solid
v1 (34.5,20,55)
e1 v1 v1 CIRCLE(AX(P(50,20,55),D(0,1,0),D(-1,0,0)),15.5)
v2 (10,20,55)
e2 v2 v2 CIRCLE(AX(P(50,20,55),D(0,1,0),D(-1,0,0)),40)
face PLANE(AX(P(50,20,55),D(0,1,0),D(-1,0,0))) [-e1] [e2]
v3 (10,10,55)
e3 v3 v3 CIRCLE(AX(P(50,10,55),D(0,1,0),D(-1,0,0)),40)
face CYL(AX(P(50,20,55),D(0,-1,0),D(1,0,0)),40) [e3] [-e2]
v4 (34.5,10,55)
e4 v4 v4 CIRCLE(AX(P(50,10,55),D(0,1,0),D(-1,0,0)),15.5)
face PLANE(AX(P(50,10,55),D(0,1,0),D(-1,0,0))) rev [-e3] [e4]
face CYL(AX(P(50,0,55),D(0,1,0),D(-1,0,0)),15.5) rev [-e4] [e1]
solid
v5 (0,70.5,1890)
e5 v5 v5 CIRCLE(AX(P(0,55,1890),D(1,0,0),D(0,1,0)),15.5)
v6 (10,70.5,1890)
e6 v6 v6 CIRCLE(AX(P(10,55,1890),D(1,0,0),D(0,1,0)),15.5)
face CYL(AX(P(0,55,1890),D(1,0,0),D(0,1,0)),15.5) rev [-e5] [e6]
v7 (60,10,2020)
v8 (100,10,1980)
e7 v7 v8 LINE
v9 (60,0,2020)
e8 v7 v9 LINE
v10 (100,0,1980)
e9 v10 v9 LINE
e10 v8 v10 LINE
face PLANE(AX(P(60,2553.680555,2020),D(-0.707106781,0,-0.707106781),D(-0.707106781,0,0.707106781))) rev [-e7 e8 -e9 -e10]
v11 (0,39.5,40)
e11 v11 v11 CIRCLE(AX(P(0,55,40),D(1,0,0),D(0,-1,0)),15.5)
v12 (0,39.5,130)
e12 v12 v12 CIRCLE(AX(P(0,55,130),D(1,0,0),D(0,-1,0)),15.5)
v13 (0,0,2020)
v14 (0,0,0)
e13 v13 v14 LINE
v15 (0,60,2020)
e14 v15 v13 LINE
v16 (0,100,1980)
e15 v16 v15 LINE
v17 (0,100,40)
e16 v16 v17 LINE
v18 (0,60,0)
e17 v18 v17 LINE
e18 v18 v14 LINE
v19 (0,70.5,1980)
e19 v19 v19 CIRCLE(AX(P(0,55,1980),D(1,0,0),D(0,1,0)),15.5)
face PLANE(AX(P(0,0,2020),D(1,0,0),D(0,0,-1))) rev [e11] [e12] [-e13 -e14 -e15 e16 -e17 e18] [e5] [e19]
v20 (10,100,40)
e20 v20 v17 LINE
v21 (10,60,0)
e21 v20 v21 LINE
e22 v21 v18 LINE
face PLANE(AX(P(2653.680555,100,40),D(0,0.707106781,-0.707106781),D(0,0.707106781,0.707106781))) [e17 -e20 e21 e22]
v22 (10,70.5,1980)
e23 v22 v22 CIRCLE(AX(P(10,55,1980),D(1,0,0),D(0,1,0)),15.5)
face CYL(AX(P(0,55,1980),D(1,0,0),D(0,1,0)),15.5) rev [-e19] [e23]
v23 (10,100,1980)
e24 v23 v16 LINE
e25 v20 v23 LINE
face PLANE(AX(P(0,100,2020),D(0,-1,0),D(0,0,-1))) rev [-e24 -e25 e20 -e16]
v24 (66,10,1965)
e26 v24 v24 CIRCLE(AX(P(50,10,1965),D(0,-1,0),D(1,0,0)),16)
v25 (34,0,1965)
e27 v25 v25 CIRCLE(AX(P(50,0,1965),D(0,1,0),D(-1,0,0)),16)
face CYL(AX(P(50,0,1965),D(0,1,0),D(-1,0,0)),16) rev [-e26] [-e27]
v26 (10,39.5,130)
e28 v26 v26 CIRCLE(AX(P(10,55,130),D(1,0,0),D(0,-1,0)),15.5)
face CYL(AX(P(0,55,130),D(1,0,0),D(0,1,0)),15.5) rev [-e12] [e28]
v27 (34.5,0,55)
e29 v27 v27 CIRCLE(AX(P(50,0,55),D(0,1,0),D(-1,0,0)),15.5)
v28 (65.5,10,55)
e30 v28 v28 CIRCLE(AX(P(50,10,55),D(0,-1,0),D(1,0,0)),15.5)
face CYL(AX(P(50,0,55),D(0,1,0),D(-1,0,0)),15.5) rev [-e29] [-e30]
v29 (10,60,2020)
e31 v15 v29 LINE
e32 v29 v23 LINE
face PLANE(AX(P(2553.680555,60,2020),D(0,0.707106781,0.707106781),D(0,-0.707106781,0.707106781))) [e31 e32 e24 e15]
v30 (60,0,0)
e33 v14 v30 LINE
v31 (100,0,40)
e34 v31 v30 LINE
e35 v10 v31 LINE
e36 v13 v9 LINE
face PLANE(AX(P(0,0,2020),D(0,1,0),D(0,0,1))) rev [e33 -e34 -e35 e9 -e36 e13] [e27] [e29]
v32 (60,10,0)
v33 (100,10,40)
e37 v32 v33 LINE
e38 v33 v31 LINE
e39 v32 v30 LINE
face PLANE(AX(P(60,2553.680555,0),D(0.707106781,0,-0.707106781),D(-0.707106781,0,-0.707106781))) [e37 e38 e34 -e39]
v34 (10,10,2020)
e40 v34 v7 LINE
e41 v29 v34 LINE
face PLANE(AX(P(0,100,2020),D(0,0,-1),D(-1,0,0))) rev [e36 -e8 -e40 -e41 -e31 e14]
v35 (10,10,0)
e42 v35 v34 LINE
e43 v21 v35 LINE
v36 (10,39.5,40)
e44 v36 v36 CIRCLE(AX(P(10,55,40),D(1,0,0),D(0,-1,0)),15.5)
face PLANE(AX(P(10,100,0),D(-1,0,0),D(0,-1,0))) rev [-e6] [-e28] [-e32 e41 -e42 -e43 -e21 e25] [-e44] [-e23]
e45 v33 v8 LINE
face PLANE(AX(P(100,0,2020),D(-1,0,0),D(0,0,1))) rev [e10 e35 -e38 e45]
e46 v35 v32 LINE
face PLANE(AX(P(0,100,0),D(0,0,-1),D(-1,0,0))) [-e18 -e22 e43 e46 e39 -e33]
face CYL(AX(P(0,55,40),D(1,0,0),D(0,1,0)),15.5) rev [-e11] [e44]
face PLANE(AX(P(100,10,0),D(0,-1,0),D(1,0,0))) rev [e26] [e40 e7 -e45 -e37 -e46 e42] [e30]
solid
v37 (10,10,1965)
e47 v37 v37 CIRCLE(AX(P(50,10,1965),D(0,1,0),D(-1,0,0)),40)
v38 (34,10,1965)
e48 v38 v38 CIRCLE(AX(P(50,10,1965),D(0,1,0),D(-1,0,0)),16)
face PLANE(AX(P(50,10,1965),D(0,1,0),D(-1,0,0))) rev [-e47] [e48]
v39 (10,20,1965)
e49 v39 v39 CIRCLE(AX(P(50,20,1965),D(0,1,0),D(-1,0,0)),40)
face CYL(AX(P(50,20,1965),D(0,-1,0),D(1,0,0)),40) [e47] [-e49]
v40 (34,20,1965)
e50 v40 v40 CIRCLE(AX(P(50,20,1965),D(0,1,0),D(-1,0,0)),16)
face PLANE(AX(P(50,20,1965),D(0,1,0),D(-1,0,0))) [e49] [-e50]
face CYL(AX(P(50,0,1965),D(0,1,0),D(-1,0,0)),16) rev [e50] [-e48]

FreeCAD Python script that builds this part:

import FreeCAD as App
import Part
import Sketcher
from FreeCAD import Vector
Q = App.Units.Quantity


def add_polygon(sketch, points):
    """Adds a closed chain of lines whose ends are joined by coincident constraints."""
    first, n = sketch.GeometryCount, len(points)
    for a, b in zip(points, points[1:] + points[:1]):
        sketch.addGeometry(Part.LineSegment(App.Vector(*a, 0), App.Vector(*b, 0)), False)
    for i in range(n):
        sketch.addConstraint(Sketcher.Constraint("Coincident", first + i, 2, first + (i + 1) % n, 1))

doc = App.newDocument("Part")
body = doc.addObject("PartDesign::Body", "Body")

# Sketch on XY plane
sketch1 = doc.addObject("Sketcher::SketchObject", "Sketch")
body.addObject(sketch1)
sketch1.AttachmentSupport = (doc.XY_Plane, [""])
sketch1.MapMode = "FlatFace"
add_polygon(sketch1, [(0, 100), (0, 0), (100, 0), (100, 100)])  # lines 0-3
sketch1.addConstraint(Sketcher.Constraint("Vertical", 0))
sketch1.addConstraint(Sketcher.Constraint("Horizontal", 1))
sketch1.addConstraint(Sketcher.Constraint("Vertical", 2))
sketch1.addConstraint(Sketcher.Constraint("Horizontal", 3))
sketch1.addConstraint(Sketcher.Constraint("Coincident", 0, 2, -1, 1))
sketch1.addConstraint(Sketcher.Constraint("Equal", 3, 0))
sketch1.addConstraint(Sketcher.Constraint("DistanceX", 1, 1, 1, 2, Q("100 mm")))
pad1 = doc.addObject("PartDesign::Pad", "Pad")
body.addObject(pad1)
pad1.Profile = sketch1
pad1.Length = 2020

# Sketch on XY plane
sketch2 = doc.addObject("Sketcher::SketchObject", "Sketch001")
body.addObject(sketch2)
sketch2.AttachmentSupport = (doc.XY_Plane, [""])
sketch2.MapMode = "FlatFace"
sketch2.AttachmentOffset = App.Placement(Vector(0, 0, 2020), App.Rotation())
add_polygon(sketch2, [(10, 100), (10, 10), (100, 10), (100, 100)])  # lines 0-3
sketch2.addConstraint(Sketcher.Constraint("Vertical", 0))
sketch2.addConstraint(Sketcher.Constraint("Horizontal", 1))
sketch2.addConstraint(Sketcher.Constraint("Vertical", 2))
sketch2.addConstraint(Sketcher.Constraint("Horizontal", 3))
sketch2.addConstraint(Sketcher.Constraint("Equal", 3, 0))
sketch2.addConstraint(Sketcher.Constraint("DistanceX", 1, 1, 1, 2, Q("90 mm")))
sketch2.addConstraint(Sketcher.Constraint("DistanceX", -1, 1, 0, 2, Q("10 mm")))
sketch2.addConstraint(Sketcher.Constraint("DistanceY", -1, 1, 0, 2, Q("10 mm")))
pocket1 = doc.addObject("PartDesign::Pocket", "Pocket")
body.addObject(pocket1)
pocket1.Profile = sketch2
pocket1.Type = "ThroughAll"

# Sketch on YZ plane
sketch3 = doc.addObject("Sketcher::SketchObject", "Sketch002")
body.addObject(sketch3)
sketch3.AttachmentSupport = (doc.YZ_Plane, [""])
sketch3.MapMode = "FlatFace"
sketch3.AttachmentOffset = App.Placement(Vector(0, 0, 10), App.Rotation())
sketch3.addGeometry(Part.Circle(Vector(55, 1980, 0), Vector(0, 0, 1), 16), False)
sketch3.addGeometry(Part.Circle(Vector(55, 1890, 0), Vector(0, 0, 1), 16), False)
sketch3.addGeometry(Part.Circle(Vector(55, 130, 0), Vector(0, 0, 1), 16), False)
sketch3.addGeometry(Part.Circle(Vector(55, 40, 0), Vector(0, 0, 1), 16), False)
sketch3.addConstraint(Sketcher.Constraint("Equal", 0, 1))
sketch3.addConstraint(Sketcher.Constraint("Equal", 1, 2))
sketch3.addConstraint(Sketcher.Constraint("Equal", 2, 3))
sketch3.addConstraint(Sketcher.Constraint("Vertical", 0, 3, 1, 3))
sketch3.addConstraint(Sketcher.Constraint("Vertical", 1, 3, 2, 3))
sketch3.addConstraint(Sketcher.Constraint("Vertical", 2, 3, 3, 3))
sketch3.addConstraint(Sketcher.Constraint("Diameter", 0, Q("31 mm")))
sketch3.addConstraint(Sketcher.Constraint("DistanceX", -1, 1, 0, 3, Q("55 mm")))
sketch3.addConstraint(Sketcher.Constraint("DistanceY", -1, 1, 0, 3, Q("1980 mm")))
sketch3.addConstraint(Sketcher.Constraint("DistanceY", -1, 1, 1, 3, Q("1890 mm")))
sketch3.addConstraint(Sketcher.Constraint("DistanceY", -1, 1, 2, 3, Q("130 mm")))
sketch3.addConstraint(Sketcher.Constraint("DistanceY", -1, 1, 3, 3, Q("40 mm")))
pocket2 = doc.addObject("PartDesign::Pocket", "Pocket001")
body.addObject(pocket2)
pocket2.Profile = sketch3
pocket2.Type = "ThroughAll"
body2 = doc.addObject("PartDesign::Body", "Body001")

# Sketch on XZ plane
sketch4 = doc.addObject("Sketcher::SketchObject", "Sketch003")
body2.addObject(sketch4)
sketch4.AttachmentSupport = (doc.getObject("XZ_Plane001"), [""])
sketch4.MapMode = "FlatFace"
sketch4.AttachmentOffset = App.Placement(Vector(0, 0, -10), App.Rotation())
sketch4.addGeometry(Part.Circle(Vector(50, 1965, 0), Vector(0, 0, 1), 40), False)
sketch4.addConstraint(Sketcher.Constraint("Diameter", 0, Q("80 mm")))
sketch4.addConstraint(Sketcher.Constraint("DistanceX", -1, 1, 0, 3, Q("50 mm")))
sketch4.addConstraint(Sketcher.Constraint("DistanceY", -1, 1, 0, 3, Q("1965 mm")))
pad2 = doc.addObject("PartDesign::Pad", "Pad001")
body2.addObject(pad2)
pad2.Profile = sketch4
pad2.Length = 10
pad2.Reversed = True
body3 = doc.addObject("PartDesign::Body", "Body002")

# Sketch on XZ plane
sketch5 = doc.addObject("Sketcher::SketchObject", "Sketch004")
body3.addObject(sketch5)
sketch5.AttachmentSupport = (doc.getObject("XZ_Plane002"), [""])
sketch5.MapMode = "FlatFace"
sketch5.AttachmentOffset = App.Placement(Vector(0, 0, -10), App.Rotation())
sketch5.addGeometry(Part.Circle(Vector(50, 55, 0), Vector(0, 0, 1), 40), False)
sketch5.addConstraint(Sketcher.Constraint("Diameter", 0, Q("80 mm")))
sketch5.addConstraint(Sketcher.Constraint("DistanceX", -1, 1, 0, 3, Q("50 mm")))
sketch5.addConstraint(Sketcher.Constraint("DistanceY", -1, 1, 0, 3, Q("55 mm")))
pad3 = doc.addObject("PartDesign::Pad", "Pad002")
body3.addObject(pad3)
pad3.Profile = sketch5
pad3.Length = 10
pad3.Reversed = True
body4 = doc.addObject("PartDesign::Body", "Body003")

# Sketch on XZ plane
sketch6 = doc.addObject("Sketcher::SketchObject", "Sketch005")
body4.addObject(sketch6)
sketch6.AttachmentSupport = (doc.getObject("XZ_Plane003"), [""])
sketch6.MapMode = "FlatFace"
sketch6.AttachmentOffset = App.Placement(Vector(0, 0, -20), App.Rotation())
sketch6.addGeometry(Part.Circle(Vector(50, 55, 0), Vector(0, 0, 1), 16), False)
sketch6.addConstraint(Sketcher.Constraint("Diameter", 0, Q("31 mm")))
sketch6.addConstraint(Sketcher.Constraint("DistanceX", -1, 1, 0, 3, Q("50 mm")))
sketch6.addConstraint(Sketcher.Constraint("DistanceY", -1, 1, 0, 3, Q("55 mm")))
pad4 = doc.addObject("PartDesign::Pad", "Pad003")
body4.addObject(pad4)
pad4.Profile = sketch6
pad4.Length = 2025.055335
doc.recompute()

body5 = doc.addObject("PartDesign::Body", "Body004")
body5.BaseFeature = body4
boolean = doc.addObject("PartDesign::Boolean", "Boolean")
body.addObject(boolean)
boolean.Type = "Cut"
boolean.addObjects([body5])
doc.recompute()

boolean2 = doc.addObject("PartDesign::Boolean", "Boolean001")
body3.addObject(boolean2)
boolean2.Type = "Cut"
boolean2.addObjects([body4])
body6 = doc.addObject("PartDesign::Body", "Body005")

# Sketch on XZ plane
sketch7 = doc.addObject("Sketcher::SketchObject", "Sketch006")
body6.addObject(sketch7)
sketch7.AttachmentSupport = (doc.getObject("XZ_Plane005"), [""])
sketch7.MapMode = "FlatFace"
sketch7.AttachmentOffset = App.Placement(Vector(0, 0, -20), App.Rotation())
sketch7.addGeometry(Part.Circle(Vector(50, 1965, 0), Vector(0, 0, 1), 16), False)
sketch7.addConstraint(Sketcher.Constraint("Diameter", 0, Q("32 mm")))
sketch7.addConstraint(Sketcher.Constraint("DistanceX", -1, 1, 0, 3, Q("50 mm")))
sketch7.addConstraint(Sketcher.Constraint("DistanceY", -1, 1, 0, 3, Q("1965 mm")))
pad5 = doc.addObject("PartDesign::Pad", "Pad004")
body6.addObject(pad5)
pad5.Profile = sketch7
pad5.Length = 2025.055335
doc.recompute()

body7 = doc.addObject("PartDesign::Body", "Body006")
body7.BaseFeature = body6
boolean3 = doc.addObject("PartDesign::Boolean", "Boolean002")
body.addObject(boolean3)
boolean3.Type = "Cut"
boolean3.addObjects([body7])
doc.recompute()

# Sketch on XZ plane
sketch8 = doc.addObject("Sketcher::SketchObject", "Sketch007")
body.addObject(sketch8)
sketch8.AttachmentSupport = (doc.XZ_Plane, [""])
sketch8.MapMode = "FlatFace"
sketch8.AttachmentOffset = App.Placement(Vector(0, 0, -10), App.Rotation())
add_polygon(sketch8, [(2965, -885), (-2805, 4885), (2925, 10615), (8695, 4845)])  # lines 0-3
sketch8.addConstraint(Sketcher.Constraint("Perpendicular", 0, 1))
sketch8.addConstraint(Sketcher.Constraint("Perpendicular", 1, 2))
sketch8.addConstraint(Sketcher.Constraint("Perpendicular", 2, 3))
sketch8.addConstraint(Sketcher.Constraint("Angle", 0, Q("135 deg")))
sketch8.addConstraint(Sketcher.Constraint("DistanceY", 2, 2, 0, 2, Q("40 mm")))
sketch8.addConstraint(Sketcher.Constraint("Distance", 1, Q("8103.563571 mm")))
sketch8.addConstraint(Sketcher.Constraint("DistanceY", -1, 1, 1, 2, Q("10615.127129 mm")))
sketch8.addConstraint(Sketcher.Constraint("DistanceX", -1, 1, 2, 2, Q("8695.127129 mm")))
pocket3 = doc.addObject("PartDesign::Pocket", "Pocket002")
body.addObject(pocket3)
pocket3.Profile = sketch8
pocket3.Type = "ThroughAll"
pocket3.Midplane = True

# Sketch on XZ plane
sketch9 = doc.addObject("Sketcher::SketchObject", "Sketch008")
body.addObject(sketch9)
sketch9.AttachmentSupport = (doc.XZ_Plane, [""])
sketch9.MapMode = "FlatFace"
sketch9.AttachmentOffset = App.Placement(Vector(0, 0, -10), App.Rotation())
add_polygon(sketch9, [(-2805, -2865), (2965, 2905), (8695, -2825), (2925, -8595)])  # lines 0-3
sketch9.addConstraint(Sketcher.Constraint("Perpendicular", 0, 1))
sketch9.addConstraint(Sketcher.Constraint("Perpendicular", 1, 2))
sketch9.addConstraint(Sketcher.Constraint("Perpendicular", 2, 3))
sketch9.addConstraint(Sketcher.Constraint("Angle", 0, Q("45 deg")))
sketch9.addConstraint(Sketcher.Constraint("DistanceX", 2, 2, 0, 2, Q("40 mm")))
sketch9.addConstraint(Sketcher.Constraint("Distance", 1, Q("8103.563571 mm")))
sketch9.addConstraint(Sketcher.Constraint("DistanceX", -1, 1, 1, 2, Q("8695.127129 mm")))
sketch9.addConstraint(Sketcher.Constraint("DistanceY", 2, 2, -1, 1, Q("8595.127129 mm")))
pocket4 = doc.addObject("PartDesign::Pocket", "Pocket003")
body.addObject(pocket4)
pocket4.Profile = sketch9
pocket4.Type = "ThroughAll"
pocket4.Midplane = True

# Sketch on YZ plane
sketch10 = doc.addObject("Sketcher::SketchObject", "Sketch009")
body.addObject(sketch10)
sketch10.AttachmentSupport = (doc.YZ_Plane, [""])
sketch10.MapMode = "FlatFace"
sketch10.AttachmentOffset = App.Placement(Vector(0, 0, 10), App.Rotation())
add_polygon(sketch10, [(2965, 2905), (-2805, -2865), (2925, -8595), (8695, -2825)])  # lines 0-3
sketch10.addConstraint(Sketcher.Constraint("Perpendicular", 0, 1))
sketch10.addConstraint(Sketcher.Constraint("Perpendicular", 1, 2))
sketch10.addConstraint(Sketcher.Constraint("Perpendicular", 2, 3))
sketch10.addConstraint(Sketcher.Constraint("Angle", 0, Q("-135 deg")))
sketch10.addConstraint(Sketcher.Constraint("DistanceY", 0, 2, 2, 2, Q("40 mm")))
sketch10.addConstraint(Sketcher.Constraint("Distance", 1, Q("8103.563571 mm")))
sketch10.addConstraint(Sketcher.Constraint("DistanceY", 1, 2, -1, 1, Q("8595.127129 mm")))
sketch10.addConstraint(Sketcher.Constraint("DistanceX", -1, 1, 2, 2, Q("8695.127129 mm")))
pocket5 = doc.addObject("PartDesign::Pocket", "Pocket004")
body.addObject(pocket5)
pocket5.Profile = sketch10
pocket5.Type = "ThroughAll"
pocket5.Midplane = True

# Sketch on YZ plane
sketch11 = doc.addObject("Sketcher::SketchObject", "Sketch010")
body.addObject(sketch11)
sketch11.AttachmentSupport = (doc.YZ_Plane, [""])
sketch11.MapMode = "FlatFace"
sketch11.AttachmentOffset = App.Placement(Vector(0, 0, 10), App.Rotation())
add_polygon(sketch11, [(-2805, 4885), (2965, -885), (8695, 4845), (2925, 10615)])  # lines 0-3
sketch11.addConstraint(Sketcher.Constraint("Perpendicular", 0, 1))
sketch11.addConstraint(Sketcher.Constraint("Perpendicular", 1, 2))
sketch11.addConstraint(Sketcher.Constraint("Perpendicular", 2, 3))
sketch11.addConstraint(Sketcher.Constraint("Angle", 0, Q("-45 deg")))
sketch11.addConstraint(Sketcher.Constraint("DistanceX", 2, 2, 0, 2, Q("40 mm")))
sketch11.addConstraint(Sketcher.Constraint("Distance", 1, Q("8103.563571 mm")))
sketch11.addConstraint(Sketcher.Constraint("DistanceX", -1, 1, 1, 2, Q("8695.127129 mm")))
sketch11.addConstraint(Sketcher.Constraint("DistanceY", -1, 1, 2, 2, Q("10615.127129 mm")))
pocket6 = doc.addObject("PartDesign::Pocket", "Pocket005")
body.addObject(pocket6)
pocket6.Profile = sketch11
pocket6.Type = "ThroughAll"
pocket6.Midplane = True
doc.recompute()

boolean4 = doc.addObject("PartDesign::Boolean", "Boolean003")
body2.addObject(boolean4)
boolean4.Type = "Cut"
boolean4.addObjects([body6])

doc.recompute()
